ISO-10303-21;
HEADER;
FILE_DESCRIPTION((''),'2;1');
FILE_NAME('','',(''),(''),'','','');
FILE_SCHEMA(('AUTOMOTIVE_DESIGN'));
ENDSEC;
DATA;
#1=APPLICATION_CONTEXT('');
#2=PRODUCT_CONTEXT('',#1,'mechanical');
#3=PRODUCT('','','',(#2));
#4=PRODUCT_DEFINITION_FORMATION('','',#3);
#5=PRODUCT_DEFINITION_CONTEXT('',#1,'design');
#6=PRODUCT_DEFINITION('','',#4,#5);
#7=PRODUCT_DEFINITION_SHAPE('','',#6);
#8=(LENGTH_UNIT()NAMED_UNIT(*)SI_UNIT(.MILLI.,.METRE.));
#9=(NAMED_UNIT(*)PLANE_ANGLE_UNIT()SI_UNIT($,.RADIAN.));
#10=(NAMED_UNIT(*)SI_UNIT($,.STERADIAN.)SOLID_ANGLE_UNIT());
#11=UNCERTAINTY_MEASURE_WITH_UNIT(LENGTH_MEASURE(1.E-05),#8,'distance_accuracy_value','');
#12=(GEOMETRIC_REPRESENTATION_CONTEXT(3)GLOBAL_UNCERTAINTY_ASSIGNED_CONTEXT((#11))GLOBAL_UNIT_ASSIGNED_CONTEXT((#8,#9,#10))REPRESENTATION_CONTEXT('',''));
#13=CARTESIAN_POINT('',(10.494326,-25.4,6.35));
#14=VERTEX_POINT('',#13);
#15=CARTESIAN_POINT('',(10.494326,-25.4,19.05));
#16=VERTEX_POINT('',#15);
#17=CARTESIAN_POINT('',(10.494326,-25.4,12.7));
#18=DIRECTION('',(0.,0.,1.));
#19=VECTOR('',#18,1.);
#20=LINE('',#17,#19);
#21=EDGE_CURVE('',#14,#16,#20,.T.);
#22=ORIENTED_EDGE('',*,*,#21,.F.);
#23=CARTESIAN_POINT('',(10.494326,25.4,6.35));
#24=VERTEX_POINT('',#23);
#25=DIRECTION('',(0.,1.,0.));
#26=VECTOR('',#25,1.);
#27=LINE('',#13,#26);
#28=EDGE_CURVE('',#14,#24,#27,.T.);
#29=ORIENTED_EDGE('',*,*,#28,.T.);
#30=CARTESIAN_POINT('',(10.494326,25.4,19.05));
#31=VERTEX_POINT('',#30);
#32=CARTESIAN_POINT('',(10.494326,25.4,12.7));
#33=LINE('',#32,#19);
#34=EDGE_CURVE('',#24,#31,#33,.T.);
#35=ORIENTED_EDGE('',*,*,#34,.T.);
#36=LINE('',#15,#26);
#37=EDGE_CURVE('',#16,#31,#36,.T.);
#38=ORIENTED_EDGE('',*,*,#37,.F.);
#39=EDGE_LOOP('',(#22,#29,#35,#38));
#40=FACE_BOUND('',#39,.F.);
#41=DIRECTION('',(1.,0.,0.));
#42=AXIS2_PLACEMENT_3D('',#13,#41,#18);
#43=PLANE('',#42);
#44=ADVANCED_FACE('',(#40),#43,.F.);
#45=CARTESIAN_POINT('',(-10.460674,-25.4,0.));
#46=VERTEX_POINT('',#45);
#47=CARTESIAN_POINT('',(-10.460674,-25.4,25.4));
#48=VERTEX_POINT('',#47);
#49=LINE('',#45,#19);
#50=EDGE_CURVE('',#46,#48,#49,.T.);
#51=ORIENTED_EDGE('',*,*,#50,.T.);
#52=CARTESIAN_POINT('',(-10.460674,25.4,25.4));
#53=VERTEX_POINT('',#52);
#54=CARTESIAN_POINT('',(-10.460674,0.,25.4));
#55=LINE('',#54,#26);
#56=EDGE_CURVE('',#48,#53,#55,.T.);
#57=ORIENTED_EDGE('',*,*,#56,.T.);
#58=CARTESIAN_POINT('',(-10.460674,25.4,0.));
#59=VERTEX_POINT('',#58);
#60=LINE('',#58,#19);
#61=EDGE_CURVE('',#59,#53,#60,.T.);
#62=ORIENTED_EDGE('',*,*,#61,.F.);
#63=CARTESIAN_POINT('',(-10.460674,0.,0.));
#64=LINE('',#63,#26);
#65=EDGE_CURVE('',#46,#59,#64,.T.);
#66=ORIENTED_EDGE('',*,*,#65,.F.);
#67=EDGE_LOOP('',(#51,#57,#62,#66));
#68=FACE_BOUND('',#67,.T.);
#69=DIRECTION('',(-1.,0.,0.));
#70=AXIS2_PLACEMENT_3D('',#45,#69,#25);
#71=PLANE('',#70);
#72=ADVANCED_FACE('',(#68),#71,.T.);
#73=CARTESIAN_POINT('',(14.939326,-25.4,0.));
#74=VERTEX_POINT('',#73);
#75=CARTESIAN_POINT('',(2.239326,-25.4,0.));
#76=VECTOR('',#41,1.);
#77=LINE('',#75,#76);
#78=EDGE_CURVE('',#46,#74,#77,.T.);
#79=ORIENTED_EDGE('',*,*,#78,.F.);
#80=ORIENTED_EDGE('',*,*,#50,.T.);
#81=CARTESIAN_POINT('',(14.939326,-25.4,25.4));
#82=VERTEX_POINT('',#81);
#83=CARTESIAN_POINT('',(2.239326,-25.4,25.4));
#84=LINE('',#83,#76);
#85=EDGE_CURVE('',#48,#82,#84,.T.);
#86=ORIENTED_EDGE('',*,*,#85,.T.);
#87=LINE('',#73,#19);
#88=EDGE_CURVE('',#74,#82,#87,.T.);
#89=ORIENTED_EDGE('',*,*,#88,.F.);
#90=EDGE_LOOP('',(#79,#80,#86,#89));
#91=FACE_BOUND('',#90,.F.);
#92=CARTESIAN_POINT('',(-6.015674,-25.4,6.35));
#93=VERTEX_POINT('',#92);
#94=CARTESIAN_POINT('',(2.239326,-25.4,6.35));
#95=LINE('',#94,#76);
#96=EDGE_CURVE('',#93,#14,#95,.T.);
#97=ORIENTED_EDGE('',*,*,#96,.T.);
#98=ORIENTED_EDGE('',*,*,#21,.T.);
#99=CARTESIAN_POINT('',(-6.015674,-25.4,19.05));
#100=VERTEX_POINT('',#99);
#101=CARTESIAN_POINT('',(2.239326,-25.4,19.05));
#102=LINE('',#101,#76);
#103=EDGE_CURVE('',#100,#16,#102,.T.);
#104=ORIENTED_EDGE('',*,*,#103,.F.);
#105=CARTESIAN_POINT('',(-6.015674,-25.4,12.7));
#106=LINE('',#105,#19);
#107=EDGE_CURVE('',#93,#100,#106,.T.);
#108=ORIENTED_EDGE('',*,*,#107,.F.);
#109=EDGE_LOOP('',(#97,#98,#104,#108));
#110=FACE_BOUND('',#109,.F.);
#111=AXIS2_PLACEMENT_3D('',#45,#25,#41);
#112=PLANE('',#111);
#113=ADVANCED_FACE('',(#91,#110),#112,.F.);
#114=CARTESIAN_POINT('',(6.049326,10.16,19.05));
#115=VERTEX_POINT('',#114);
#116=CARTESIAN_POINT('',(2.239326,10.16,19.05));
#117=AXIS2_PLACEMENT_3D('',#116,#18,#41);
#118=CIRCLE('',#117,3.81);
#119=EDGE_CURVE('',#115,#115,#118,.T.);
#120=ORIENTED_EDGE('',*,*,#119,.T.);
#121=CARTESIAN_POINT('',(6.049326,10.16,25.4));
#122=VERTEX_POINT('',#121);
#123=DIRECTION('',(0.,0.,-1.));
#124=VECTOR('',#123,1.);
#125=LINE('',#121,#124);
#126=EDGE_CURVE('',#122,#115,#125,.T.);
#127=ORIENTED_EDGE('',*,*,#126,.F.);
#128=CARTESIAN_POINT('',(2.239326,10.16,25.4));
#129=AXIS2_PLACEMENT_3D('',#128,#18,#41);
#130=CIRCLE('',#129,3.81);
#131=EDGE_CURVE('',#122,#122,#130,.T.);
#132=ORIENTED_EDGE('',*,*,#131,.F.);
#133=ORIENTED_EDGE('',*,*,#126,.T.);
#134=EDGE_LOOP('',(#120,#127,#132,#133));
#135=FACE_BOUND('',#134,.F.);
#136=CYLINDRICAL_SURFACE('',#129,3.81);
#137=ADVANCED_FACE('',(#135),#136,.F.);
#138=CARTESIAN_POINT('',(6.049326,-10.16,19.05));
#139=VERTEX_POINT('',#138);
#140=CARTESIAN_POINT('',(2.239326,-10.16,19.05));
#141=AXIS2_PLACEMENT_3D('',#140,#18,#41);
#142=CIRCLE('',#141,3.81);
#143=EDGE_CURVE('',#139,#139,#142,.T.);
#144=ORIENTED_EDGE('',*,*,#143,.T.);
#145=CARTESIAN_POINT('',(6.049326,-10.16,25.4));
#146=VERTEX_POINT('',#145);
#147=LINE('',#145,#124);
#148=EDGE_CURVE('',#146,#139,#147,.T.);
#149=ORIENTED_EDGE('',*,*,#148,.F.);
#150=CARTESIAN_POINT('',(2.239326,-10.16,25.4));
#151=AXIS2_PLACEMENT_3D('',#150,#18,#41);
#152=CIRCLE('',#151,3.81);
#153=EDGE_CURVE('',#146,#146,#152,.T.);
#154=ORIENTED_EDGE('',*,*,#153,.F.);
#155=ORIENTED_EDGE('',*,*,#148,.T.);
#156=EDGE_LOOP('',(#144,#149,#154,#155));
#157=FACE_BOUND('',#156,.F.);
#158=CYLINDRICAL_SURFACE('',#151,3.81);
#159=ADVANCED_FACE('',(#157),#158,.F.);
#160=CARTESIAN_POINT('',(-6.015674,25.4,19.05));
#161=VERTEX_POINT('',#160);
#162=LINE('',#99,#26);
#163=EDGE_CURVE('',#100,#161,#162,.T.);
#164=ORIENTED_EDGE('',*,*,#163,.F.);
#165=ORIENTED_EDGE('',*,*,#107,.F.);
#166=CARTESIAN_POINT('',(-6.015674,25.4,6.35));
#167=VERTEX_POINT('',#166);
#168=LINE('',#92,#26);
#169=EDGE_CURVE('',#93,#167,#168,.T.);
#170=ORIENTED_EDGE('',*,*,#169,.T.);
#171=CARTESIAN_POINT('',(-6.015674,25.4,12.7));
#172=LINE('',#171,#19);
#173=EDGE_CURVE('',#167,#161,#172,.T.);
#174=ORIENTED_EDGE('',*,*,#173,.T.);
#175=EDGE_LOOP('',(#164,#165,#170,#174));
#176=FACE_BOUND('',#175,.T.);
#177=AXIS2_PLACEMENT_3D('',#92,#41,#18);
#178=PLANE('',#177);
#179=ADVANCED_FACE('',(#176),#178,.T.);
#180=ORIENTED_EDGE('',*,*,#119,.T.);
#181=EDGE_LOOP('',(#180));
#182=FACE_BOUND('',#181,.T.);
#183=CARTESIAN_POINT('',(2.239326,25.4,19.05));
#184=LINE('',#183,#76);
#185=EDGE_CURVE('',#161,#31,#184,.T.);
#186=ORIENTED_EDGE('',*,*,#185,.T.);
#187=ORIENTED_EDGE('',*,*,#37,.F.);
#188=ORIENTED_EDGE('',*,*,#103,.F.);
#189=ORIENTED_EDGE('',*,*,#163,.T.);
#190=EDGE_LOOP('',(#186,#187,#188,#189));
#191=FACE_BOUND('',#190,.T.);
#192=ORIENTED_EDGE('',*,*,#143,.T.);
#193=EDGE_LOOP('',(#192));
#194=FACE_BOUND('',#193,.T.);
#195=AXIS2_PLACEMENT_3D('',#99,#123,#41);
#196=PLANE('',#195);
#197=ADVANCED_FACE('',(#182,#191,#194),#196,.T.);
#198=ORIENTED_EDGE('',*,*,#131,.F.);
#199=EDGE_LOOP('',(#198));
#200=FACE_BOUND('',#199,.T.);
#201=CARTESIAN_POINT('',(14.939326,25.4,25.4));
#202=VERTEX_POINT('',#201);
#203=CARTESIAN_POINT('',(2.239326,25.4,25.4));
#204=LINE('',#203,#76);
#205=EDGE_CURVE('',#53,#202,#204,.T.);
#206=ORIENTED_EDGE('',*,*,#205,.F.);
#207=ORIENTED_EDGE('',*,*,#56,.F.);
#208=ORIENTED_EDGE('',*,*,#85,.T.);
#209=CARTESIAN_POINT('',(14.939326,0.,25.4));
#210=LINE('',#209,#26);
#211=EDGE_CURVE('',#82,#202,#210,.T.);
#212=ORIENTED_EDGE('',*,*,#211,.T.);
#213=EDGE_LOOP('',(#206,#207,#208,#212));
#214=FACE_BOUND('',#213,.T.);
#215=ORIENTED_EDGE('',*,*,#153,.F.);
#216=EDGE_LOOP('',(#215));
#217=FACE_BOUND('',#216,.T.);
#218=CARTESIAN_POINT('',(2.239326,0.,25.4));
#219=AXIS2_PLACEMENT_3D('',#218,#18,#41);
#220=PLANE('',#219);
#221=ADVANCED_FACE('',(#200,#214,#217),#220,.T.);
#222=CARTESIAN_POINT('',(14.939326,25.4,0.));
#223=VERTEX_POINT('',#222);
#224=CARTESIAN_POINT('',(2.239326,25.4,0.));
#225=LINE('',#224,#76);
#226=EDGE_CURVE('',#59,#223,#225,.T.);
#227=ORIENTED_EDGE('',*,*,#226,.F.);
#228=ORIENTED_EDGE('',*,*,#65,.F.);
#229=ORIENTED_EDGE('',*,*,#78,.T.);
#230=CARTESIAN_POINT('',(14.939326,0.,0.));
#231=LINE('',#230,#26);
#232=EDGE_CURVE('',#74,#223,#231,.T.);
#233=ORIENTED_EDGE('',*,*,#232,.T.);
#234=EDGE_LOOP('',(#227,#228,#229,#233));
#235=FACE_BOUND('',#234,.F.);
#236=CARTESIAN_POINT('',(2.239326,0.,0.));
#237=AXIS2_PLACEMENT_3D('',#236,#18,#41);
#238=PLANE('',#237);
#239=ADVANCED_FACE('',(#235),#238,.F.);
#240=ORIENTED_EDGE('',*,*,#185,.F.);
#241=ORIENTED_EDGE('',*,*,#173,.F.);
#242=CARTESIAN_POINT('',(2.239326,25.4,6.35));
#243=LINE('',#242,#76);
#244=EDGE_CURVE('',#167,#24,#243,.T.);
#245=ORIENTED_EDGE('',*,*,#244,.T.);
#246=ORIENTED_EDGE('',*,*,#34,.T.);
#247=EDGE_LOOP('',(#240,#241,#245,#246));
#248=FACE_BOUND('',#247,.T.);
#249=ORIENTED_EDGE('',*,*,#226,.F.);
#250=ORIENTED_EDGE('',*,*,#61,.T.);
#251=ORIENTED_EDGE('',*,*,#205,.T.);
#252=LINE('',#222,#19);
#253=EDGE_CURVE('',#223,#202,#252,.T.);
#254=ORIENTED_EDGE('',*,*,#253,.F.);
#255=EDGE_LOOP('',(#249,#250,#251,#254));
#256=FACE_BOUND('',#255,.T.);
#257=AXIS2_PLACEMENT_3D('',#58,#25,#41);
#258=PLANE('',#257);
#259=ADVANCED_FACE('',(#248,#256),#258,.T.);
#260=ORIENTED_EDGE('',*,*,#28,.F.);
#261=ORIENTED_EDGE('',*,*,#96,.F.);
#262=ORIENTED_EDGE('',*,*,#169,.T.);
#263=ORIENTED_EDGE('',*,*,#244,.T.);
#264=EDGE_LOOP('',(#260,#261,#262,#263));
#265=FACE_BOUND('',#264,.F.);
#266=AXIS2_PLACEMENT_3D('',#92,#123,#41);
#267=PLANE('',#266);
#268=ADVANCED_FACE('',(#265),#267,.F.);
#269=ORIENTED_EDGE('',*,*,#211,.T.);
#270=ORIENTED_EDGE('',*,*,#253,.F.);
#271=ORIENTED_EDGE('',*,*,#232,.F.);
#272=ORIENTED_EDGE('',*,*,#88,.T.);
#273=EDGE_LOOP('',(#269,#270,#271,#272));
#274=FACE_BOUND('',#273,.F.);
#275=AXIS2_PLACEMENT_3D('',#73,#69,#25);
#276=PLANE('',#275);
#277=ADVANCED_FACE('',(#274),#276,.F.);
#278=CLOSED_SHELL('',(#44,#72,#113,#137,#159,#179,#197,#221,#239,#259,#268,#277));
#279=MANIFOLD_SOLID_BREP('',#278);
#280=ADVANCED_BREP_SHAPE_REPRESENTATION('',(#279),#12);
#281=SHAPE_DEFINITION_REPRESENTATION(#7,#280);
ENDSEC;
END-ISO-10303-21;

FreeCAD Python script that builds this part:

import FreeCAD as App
import Part
import Sketcher
Q = App.Units.Quantity

doc = App.newDocument("Part")
body = doc.addObject("PartDesign::Body", "Body")

# Sketch on XY plane
sketch1 = doc.addObject("Sketcher::SketchObject", "Sketch")
body.addObject(sketch1)
sketch1.AttachmentSupport = (doc.XY_Plane, [""])
sketch1.MapMode = "FlatFace"
sketch1.addGeometry(Part.LineSegment(App.Vector(-10, 25, 0), App.Vector(-10, -25, 0)), False)
sketch1.addGeometry(Part.LineSegment(App.Vector(-10, -25, 0), App.Vector(15, -25, 0)), False)
sketch1.addGeometry(Part.LineSegment(App.Vector(15, -25, 0), App.Vector(15, 25, 0)), False)
sketch1.addGeometry(Part.LineSegment(App.Vector(15, 25, 0), App.Vector(-10, 25, 0)), False)
sketch1.addConstraint(Sketcher.Constraint("Coincident", 0, 2, 1, 1))
sketch1.addConstraint(Sketcher.Constraint("Coincident", 1, 2, 2, 1))
sketch1.addConstraint(Sketcher.Constraint("Coincident", 2, 2, 3, 1))
sketch1.addConstraint(Sketcher.Constraint("Coincident", 3, 2, 0, 1))
sketch1.addConstraint(Sketcher.Constraint("Vertical", 0))
sketch1.addConstraint(Sketcher.Constraint("Horizontal", 1))
sketch1.addConstraint(Sketcher.Constraint("Vertical", 2))
sketch1.addConstraint(Sketcher.Constraint("Horizontal", 3))
sketch1.addConstraint(Sketcher.Constraint("DistanceX", 1, 1, 1, 2, Q("1 in")))
sketch1.addConstraint(Sketcher.Constraint("DistanceY", 0, 2, 0, 1, Q("2 in")))
sketch1.addConstraint(Sketcher.Constraint("DistanceY", 0, 2, -1, 1, Q("1 in")))
sketch1.addConstraint(Sketcher.Constraint("DistanceX", 0, 2, -1, 1, 10.460674))
pad1 = doc.addObject("PartDesign::Pad", "Pad")
body.addObject(pad1)
pad1.Profile = sketch1
pad1.Length = Q("1 in")

# Sketch on XZ plane
sketch2 = doc.addObject("Sketcher::SketchObject", "Sketch001")
body.addObject(sketch2)
sketch2.AttachmentSupport = (doc.XZ_Plane, [""])
sketch2.MapMode = "FlatFace"
sketch2.AttachmentOffset = App.Placement(App.Vector(0, 0, 1 * 25.4), App.Rotation())
sketch2.addGeometry(Part.LineSegment(App.Vector(-6, 19, 0), App.Vector(-6, 6, 0)), False)
sketch2.addGeometry(Part.LineSegment(App.Vector(-6, 6, 0), App.Vector(10, 6, 0)), False)
sketch2.addGeometry(Part.LineSegment(App.Vector(10, 6, 0), App.Vector(10, 19, 0)), False)
sketch2.addGeometry(Part.LineSegment(App.Vector(10, 19, 0), App.Vector(-6, 19, 0)), False)
sketch2.addConstraint(Sketcher.Constraint("Coincident", 0, 2, 1, 1))
sketch2.addConstraint(Sketcher.Constraint("Coincident", 1, 2, 2, 1))
sketch2.addConstraint(Sketcher.Constraint("Coincident", 2, 2, 3, 1))
sketch2.addConstraint(Sketcher.Constraint("Coincident", 3, 2, 0, 1))
sketch2.addConstraint(Sketcher.Constraint("Vertical", 0))
sketch2.addConstraint(Sketcher.Constraint("Horizontal", 1))
sketch2.addConstraint(Sketcher.Constraint("Vertical", 2))
sketch2.addConstraint(Sketcher.Constraint("Horizontal", 3))
sketch2.addConstraint(Sketcher.Constraint("DistanceY", 0, 2, 0, 1, Q("0.5 in")))
sketch2.addConstraint(Sketcher.Constraint("DistanceX", 1, 1, 1, 2, Q("0.65 in")))
sketch2.addConstraint(Sketcher.Constraint("DistanceY", -1, 1, 0, 2, Q("0.25 in")))
sketch2.addConstraint(Sketcher.Constraint("DistanceX", 0, 2, -1, 1, 6.015674))
pocket1 = doc.addObject("PartDesign::Pocket", "Pocket")
body.addObject(pocket1)
pocket1.Profile = sketch2
pocket1.Length = Q("2 in")

# Sketch on XY plane
sketch3 = doc.addObject("Sketcher::SketchObject", "Sketch002")
body.addObject(sketch3)
sketch3.AttachmentSupport = (doc.XY_Plane, [""])
sketch3.MapMode = "FlatFace"
sketch3.AttachmentOffset = App.Placement(App.Vector(0, 0, 1 * 25.4), App.Rotation())
sketch3.addGeometry(Part.Circle(App.Vector(2.2, 10.2, 0), App.Vector(0, 0, 1), 3.8), False)
sketch3.addGeometry(Part.Circle(App.Vector(2.2, -10.2, 0), App.Vector(0, 0, 1), 3.8), False)
sketch3.addConstraint(Sketcher.Constraint("Equal", 0, 1))
sketch3.addConstraint(Sketcher.Constraint("Symmetric", 0, 3, 1, 3, -1))
sketch3.addConstraint(Sketcher.Constraint("Diameter", 0, Q("0.3 in")))
sketch3.addConstraint(Sketcher.Constraint("DistanceY", -1, 1, 0, 3, Q("0.4 in")))
sketch3.addConstraint(Sketcher.Constraint("DistanceX", -1, 1, 0, 3, 2.239326))
pocket2 = doc.addObject("PartDesign::Pocket", "Pocket001")
body.addObject(pocket2)
pocket2.Profile = sketch3
pocket2.Length = Q("0.6 in")

doc.recompute()
